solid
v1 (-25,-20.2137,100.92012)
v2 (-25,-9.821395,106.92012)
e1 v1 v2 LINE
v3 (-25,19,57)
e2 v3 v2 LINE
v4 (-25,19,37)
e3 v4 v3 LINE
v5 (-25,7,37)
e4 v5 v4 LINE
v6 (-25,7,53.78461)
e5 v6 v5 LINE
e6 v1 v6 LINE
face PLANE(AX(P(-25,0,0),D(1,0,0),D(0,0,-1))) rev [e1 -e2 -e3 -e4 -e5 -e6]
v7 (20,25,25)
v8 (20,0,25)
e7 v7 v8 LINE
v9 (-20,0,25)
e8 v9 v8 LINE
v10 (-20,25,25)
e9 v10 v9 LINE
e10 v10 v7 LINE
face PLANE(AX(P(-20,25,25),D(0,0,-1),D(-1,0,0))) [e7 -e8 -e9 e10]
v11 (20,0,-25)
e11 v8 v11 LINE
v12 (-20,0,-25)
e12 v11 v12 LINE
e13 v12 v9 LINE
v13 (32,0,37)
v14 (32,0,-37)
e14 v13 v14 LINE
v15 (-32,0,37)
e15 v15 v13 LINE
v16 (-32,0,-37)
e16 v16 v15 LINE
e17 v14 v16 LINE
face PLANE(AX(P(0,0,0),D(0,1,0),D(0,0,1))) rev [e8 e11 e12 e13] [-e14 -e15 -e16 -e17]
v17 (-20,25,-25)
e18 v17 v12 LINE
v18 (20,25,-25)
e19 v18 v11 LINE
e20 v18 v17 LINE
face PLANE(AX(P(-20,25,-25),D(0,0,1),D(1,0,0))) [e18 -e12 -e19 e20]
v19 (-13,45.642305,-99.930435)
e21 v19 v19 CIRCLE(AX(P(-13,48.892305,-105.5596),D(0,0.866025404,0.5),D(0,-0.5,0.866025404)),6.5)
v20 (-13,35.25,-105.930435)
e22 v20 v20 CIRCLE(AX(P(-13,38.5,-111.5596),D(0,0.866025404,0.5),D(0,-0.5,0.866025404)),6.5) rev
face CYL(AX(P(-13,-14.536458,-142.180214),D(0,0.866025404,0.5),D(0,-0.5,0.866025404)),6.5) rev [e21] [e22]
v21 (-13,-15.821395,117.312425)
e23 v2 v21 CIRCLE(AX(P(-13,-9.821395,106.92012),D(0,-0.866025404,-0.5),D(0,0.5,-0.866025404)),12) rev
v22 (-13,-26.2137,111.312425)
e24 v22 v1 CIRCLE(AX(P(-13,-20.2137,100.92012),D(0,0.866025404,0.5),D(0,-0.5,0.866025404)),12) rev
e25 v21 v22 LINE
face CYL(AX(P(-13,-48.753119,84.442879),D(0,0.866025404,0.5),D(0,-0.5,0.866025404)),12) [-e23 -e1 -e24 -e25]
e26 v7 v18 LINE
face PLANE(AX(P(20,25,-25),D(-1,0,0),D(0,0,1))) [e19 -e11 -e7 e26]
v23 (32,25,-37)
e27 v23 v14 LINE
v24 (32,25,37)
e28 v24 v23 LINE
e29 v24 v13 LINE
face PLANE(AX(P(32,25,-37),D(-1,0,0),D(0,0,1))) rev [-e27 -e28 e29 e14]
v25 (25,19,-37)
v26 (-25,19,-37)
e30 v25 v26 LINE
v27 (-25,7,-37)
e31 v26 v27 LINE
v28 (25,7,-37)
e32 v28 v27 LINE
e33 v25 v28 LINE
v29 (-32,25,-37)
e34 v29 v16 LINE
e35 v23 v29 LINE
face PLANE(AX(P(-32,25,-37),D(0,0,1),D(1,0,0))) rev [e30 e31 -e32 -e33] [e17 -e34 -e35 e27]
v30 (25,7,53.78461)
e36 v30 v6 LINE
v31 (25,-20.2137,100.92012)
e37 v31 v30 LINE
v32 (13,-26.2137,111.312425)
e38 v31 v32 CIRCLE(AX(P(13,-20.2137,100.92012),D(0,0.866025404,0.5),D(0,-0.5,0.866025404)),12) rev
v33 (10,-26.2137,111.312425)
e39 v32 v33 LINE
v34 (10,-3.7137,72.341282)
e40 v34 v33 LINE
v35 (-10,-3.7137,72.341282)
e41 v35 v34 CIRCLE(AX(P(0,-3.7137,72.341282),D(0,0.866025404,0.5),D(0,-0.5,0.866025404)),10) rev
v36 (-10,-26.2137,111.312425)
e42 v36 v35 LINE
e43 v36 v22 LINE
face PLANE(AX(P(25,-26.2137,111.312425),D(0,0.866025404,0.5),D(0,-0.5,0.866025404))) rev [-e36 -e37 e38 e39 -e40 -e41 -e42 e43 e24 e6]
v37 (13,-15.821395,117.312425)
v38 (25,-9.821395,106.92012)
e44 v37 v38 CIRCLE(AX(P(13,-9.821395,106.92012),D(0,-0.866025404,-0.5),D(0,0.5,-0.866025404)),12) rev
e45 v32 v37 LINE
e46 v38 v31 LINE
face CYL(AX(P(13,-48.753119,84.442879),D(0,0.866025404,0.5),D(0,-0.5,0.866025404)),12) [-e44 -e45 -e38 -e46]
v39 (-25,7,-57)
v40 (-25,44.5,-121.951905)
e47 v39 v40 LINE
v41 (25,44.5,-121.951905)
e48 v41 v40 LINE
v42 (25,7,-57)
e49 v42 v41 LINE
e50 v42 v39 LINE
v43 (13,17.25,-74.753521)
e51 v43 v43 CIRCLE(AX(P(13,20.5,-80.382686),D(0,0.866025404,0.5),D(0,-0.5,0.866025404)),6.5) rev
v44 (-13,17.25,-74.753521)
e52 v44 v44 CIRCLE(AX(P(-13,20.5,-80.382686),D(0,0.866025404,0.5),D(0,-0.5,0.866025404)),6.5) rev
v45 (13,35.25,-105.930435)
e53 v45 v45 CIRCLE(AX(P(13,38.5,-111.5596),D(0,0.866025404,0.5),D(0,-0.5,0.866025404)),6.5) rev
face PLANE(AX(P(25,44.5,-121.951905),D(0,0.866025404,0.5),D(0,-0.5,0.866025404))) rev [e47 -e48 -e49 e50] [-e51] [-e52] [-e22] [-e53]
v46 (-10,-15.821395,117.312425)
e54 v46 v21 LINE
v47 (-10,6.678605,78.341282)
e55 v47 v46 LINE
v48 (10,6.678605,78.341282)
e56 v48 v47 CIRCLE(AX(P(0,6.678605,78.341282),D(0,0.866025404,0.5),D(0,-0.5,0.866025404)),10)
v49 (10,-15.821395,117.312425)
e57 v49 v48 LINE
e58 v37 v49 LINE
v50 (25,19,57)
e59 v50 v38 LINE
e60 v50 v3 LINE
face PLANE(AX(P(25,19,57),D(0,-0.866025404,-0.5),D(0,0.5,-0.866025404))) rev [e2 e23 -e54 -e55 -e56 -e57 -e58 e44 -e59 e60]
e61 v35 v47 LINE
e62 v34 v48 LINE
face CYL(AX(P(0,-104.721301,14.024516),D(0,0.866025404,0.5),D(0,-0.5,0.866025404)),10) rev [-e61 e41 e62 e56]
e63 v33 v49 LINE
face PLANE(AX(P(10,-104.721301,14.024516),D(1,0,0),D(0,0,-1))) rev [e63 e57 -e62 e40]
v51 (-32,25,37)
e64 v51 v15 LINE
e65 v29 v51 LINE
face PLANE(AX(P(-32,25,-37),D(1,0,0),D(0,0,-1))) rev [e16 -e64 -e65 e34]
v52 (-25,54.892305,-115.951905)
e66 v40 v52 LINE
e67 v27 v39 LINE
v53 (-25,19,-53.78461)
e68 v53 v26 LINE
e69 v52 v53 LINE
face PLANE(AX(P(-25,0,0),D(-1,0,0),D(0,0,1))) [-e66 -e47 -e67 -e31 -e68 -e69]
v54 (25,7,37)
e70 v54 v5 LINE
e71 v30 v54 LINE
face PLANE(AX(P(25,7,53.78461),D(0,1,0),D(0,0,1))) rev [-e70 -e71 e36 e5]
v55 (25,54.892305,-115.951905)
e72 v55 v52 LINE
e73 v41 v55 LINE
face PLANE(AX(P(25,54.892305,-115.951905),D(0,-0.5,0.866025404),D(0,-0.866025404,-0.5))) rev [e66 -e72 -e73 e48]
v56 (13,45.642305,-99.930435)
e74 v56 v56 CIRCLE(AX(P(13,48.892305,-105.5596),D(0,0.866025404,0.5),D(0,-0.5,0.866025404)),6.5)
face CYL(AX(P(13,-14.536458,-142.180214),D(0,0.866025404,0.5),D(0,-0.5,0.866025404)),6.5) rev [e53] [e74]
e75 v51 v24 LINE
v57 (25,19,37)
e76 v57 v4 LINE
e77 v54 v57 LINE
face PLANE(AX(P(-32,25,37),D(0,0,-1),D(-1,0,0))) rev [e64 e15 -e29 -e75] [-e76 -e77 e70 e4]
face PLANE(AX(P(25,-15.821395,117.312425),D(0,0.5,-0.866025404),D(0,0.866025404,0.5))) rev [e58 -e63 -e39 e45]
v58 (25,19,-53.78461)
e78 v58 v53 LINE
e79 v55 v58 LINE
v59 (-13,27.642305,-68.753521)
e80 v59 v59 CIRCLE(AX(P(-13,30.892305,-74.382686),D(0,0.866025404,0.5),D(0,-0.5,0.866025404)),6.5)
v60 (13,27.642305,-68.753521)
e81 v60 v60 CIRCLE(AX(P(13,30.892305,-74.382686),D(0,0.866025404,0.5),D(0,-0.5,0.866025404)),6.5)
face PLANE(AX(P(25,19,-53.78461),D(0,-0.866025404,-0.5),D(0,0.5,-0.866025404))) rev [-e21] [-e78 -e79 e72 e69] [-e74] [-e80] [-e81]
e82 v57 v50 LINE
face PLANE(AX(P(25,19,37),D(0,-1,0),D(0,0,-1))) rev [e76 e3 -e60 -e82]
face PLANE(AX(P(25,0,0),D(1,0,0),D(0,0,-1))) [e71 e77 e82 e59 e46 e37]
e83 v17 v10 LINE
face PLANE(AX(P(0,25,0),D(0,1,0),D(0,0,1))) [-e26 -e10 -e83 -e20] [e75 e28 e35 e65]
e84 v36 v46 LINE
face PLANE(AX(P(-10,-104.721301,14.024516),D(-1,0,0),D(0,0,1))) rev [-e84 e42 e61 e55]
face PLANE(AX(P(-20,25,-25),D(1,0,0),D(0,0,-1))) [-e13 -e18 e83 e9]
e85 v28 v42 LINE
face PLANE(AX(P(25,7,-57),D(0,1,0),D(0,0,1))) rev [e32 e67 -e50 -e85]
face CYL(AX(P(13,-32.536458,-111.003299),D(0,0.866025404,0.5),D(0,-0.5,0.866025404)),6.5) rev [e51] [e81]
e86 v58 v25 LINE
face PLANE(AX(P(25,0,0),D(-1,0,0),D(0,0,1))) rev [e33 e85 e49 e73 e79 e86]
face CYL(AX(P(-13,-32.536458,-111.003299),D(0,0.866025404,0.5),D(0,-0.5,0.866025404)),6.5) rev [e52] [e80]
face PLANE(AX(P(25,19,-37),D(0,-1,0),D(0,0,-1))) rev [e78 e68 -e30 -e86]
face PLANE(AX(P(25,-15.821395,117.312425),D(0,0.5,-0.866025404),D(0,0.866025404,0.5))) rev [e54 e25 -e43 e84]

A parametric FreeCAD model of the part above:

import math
import FreeCAD as App
import Part
import Sketcher
from FreeCAD import Vector
Q = App.Units.Quantity


def edges_at(feature, points):
    """Names of the edges that pass closest to the given points."""
    edges = feature.Shape.Edges
    near = lambda p: min(range(len(edges)), key=lambda i: edges[i].distToShape(Part.Vertex(*p))[0])
    return sorted({f"Edge{near(p) + 1}" for p in points})


def add_polygon(sketch, points):
    """Adds a closed chain of lines whose ends are joined by coincident constraints."""
    first, n = sketch.GeometryCount, len(points)
    for a, b in zip(points, points[1:] + points[:1]):
        sketch.addGeometry(Part.LineSegment(App.Vector(*a, 0), App.Vector(*b, 0)), False)
    for i in range(n):
        sketch.addConstraint(Sketcher.Constraint("Coincident", first + i, 2, first + (i + 1) % n, 1))

doc = App.newDocument("Part")
params = doc.addObject("Spreadsheet::Sheet", "Params")
for row, (alias, value) in enumerate([
    ("sketch1_width", "64 mm"),
    ("sketch1_width2", "40 mm"),
    ("sketch1_height", "74 mm"),
    ("sketch1_height2", "50 mm"),
    ("pad1_length", "25 mm"),
    ("sketch2_width", "12 mm"),
    ("sketch2_height", "20 mm"),
    ("sketch2_length", "75 mm"),
    ("sketch2_length2", "12 mm"),
    ("pad2_length", "50 mm"),
    ("sketch3_diameter", "13 mm"),
    ("sketch4_diameter", "13 mm"),
    ("sketch5_diameter", "13 mm"),
    ("sketch6_diameter", "13 mm"),
    ("fillet_radius", "12 mm"),
    ("fillet2_radius", "12 mm"),
    ("sketch7_radius", "10 mm"),
    ("sketch7_height", "45 mm"),
], start=1):
    params.set(f"A{row}", alias)
    params.set(f"B{row}", "=" + value)
    params.setAlias(f"B{row}", alias)

body = doc.addObject("PartDesign::Body", "Body")

# Sketch on XZ plane
sketch1 = body.newObject("Sketcher::SketchObject", "Sketch")
sketch1.AttachmentSupport = (doc.getObject("XZ_Plane"), [""])
sketch1.MapMode = "FlatFace"
add_polygon(sketch1, [(-32, -37), (-32, 37), (32, 37), (32, -37)])  # lines 0-3
add_polygon(sketch1, [(20, 25), (-20, 25), (-20, -25), (20, -25)])  # lines 4-7
sketch1.addConstraint(Sketcher.Constraint("Vertical", 0))
sketch1.addConstraint(Sketcher.Constraint("Horizontal", 1))
sketch1.addConstraint(Sketcher.Constraint("Vertical", 2))
sketch1.addConstraint(Sketcher.Constraint("Horizontal", 3))
sketch1.addConstraint(Sketcher.Constraint("Horizontal", 4))
sketch1.addConstraint(Sketcher.Constraint("Vertical", 5))
sketch1.addConstraint(Sketcher.Constraint("Horizontal", 6))
sketch1.addConstraint(Sketcher.Constraint("Vertical", 7))
sketch1.addConstraint(Sketcher.Constraint("Symmetric", 0, 2, 2, 2, -1, 1))
sketch1.addConstraint(Sketcher.Constraint("Symmetric", 4, 2, 6, 2, -1, 1))
sketch1.addConstraint(Sketcher.Constraint("DistanceX", 1, 1, 1, 2, Q("64 mm")))
sketch1.addConstraint(Sketcher.Constraint("DistanceX", 4, 2, 4, 1, Q("40 mm")))
sketch1.addConstraint(Sketcher.Constraint("DistanceY", 0, 1, 0, 2, Q("74 mm")))
sketch1.addConstraint(Sketcher.Constraint("DistanceY", 5, 2, 5, 1, Q("50 mm")))
sketch1.setExpression("Constraints[18]", "Params.sketch1_width")
sketch1.setExpression("Constraints[19]", "Params.sketch1_width2")
sketch1.setExpression("Constraints[20]", "Params.sketch1_height")
sketch1.setExpression("Constraints[21]", "Params.sketch1_height2")
pad1 = body.newObject("PartDesign::Pad", "Pad")
pad1.Profile = sketch1
pad1.setExpression("Length", "Params.pad1_length")
pad1.Reversed = True

# Sketch on YZ plane
sketch2 = body.newObject("Sketcher::SketchObject", "Sketch001")
sketch2.AttachmentSupport = (doc.getObject("YZ_Plane"), [""])
sketch2.MapMode = "FlatFace"
add_polygon(sketch2, [(19, -54), (19, -37), (7, -37), (7, -57), (44, -122), (55, -116)])  # lines 0-5
add_polygon(sketch2, [(19, 37), (19, 57), (-16, 117), (-26, 111), (7, 54), (7, 37)])  # lines 6-11
sketch2.addConstraint(Sketcher.Constraint("Vertical", 0))
sketch2.addConstraint(Sketcher.Constraint("Horizontal", 1))
sketch2.addConstraint(Sketcher.Constraint("Vertical", 2))
sketch2.addConstraint(Sketcher.Constraint("Vertical", 6))
sketch2.addConstraint(Sketcher.Constraint("Vertical", 10))
sketch2.addConstraint(Sketcher.Constraint("Horizontal", 11))
sketch2.addConstraint(Sketcher.Constraint("Symmetric", 1, 2, 10, 2, -1))
sketch2.addConstraint(Sketcher.Constraint("Perpendicular", 3, 4))
sketch2.addConstraint(Sketcher.Constraint("Perpendicular", 4, 5))
sketch2.addConstraint(Sketcher.Constraint("Parallel", 5, 7))
sketch2.addConstraint(Sketcher.Constraint("Perpendicular", 7, 8))
sketch2.addConstraint(Sketcher.Constraint("Perpendicular", 8, 9))
sketch2.addConstraint(Sketcher.Constraint("Vertical", 5, 2, 6, 2))
sketch2.addConstraint(Sketcher.Constraint("Equal", 2, 6))
sketch2.addConstraint(Sketcher.Constraint("Equal", 0, 10))
sketch2.addConstraint(Sketcher.Constraint("DistanceX", 1, 2, 1, 1, Q("12 mm")))
sketch2.addConstraint(Sketcher.Constraint("DistanceY", 2, 2, 2, 1, Q("20 mm")))
sketch2.addConstraint(Sketcher.Constraint("Angle", 3, Q("-60 deg")))
sketch2.addConstraint(Sketcher.Constraint("Distance", 3, Q("75 mm")))
sketch2.addConstraint(Sketcher.Constraint("Distance", 4, Q("12 mm")))
sketch2.addConstraint(Sketcher.Constraint("DistanceX", -1, 1, 0, 2, Q("19 mm")))
sketch2.addConstraint(Sketcher.Constraint("DistanceY", 0, 2, -1, 1, Q("37 mm")))
sketch2.addConstraint(Sketcher.Constraint("Distance", 9, Q("66.4274 mm")))
sketch2.setExpression("Constraints[27]", "Params.sketch2_width")
sketch2.setExpression("Constraints[28]", "Params.sketch2_height")
sketch2.setExpression("Constraints[30]", "Params.sketch2_length")
sketch2.setExpression("Constraints[31]", "Params.sketch2_length2")
pad2 = body.newObject("PartDesign::Pad", "Pad001")
pad2.Profile = sketch2
pad2.setExpression("Length", "Params.pad2_length")
pad2.Midplane = True

# Sketch on an angled plane
sketch3 = body.newObject("Sketcher::SketchObject", "Sketch002")
sketch3.Placement = App.Placement(Vector(0, -9.039419, -5.218911), App.Rotation(Vector(1, 0, 0), Vector(0, 0.5, -0.866025404), Vector(0, 0.866025404, 0.5), "ZXY"))
sketch3.addGeometry(Part.Circle(Vector(-13, 116, 0), Vector(0, 0, 1), 6), False)
sketch3.addConstraint(Sketcher.Constraint("Diameter", 0, Q("13 mm")))
sketch3.addConstraint(Sketcher.Constraint("DistanceX", 0, 3, -1, 1, Q("13 mm")))
sketch3.addConstraint(Sketcher.Constraint("DistanceY", -1, 1, 0, 3, Q("115.863448 mm")))
sketch3.setExpression("Constraints[0]", "Params.sketch3_diameter")
pocket1 = body.newObject("PartDesign::Pocket", "Pocket")
pocket1.Profile = sketch3
pocket1.Type = "UpToFirst"

# Sketch on an angled plane
sketch4 = body.newObject("Sketcher::SketchObject", "Sketch003")
sketch4.Placement = App.Placement(Vector(0, -9.039419, -5.218911), App.Rotation(Vector(1, 0, 0), Vector(0, 0.5, -0.866025404), Vector(0, 0.866025404, 0.5), "ZXY"))
sketch4.addGeometry(Part.Circle(Vector(13, 116, 0), Vector(0, 0, 1), 6), False)
sketch4.addConstraint(Sketcher.Constraint("Diameter", 0, Q("13 mm")))
sketch4.addConstraint(Sketcher.Constraint("DistanceX", -1, 1, 0, 3, Q("13 mm")))
sketch4.addConstraint(Sketcher.Constraint("DistanceY", -1, 1, 0, 3, Q("115.863448 mm")))
sketch4.setExpression("Constraints[0]", "Params.sketch4_diameter")
pocket2 = body.newObject("PartDesign::Pocket", "Pocket001")
pocket2.Profile = sketch4
pocket2.Type = "UpToFirst"

# Sketch on an angled plane
sketch5 = body.newObject("Sketcher::SketchObject", "Sketch004")
sketch5.Placement = App.Placement(Vector(0, -9.039419, -5.218911), App.Rotation(Vector(1, 0, 0), Vector(0, 0.5, -0.866025404), Vector(0, 0.866025404, 0.5), "ZXY"))
sketch5.addGeometry(Part.Circle(Vector(-13, 80, 0), Vector(0, 0, 1), 6), False)
sketch5.addConstraint(Sketcher.Constraint("Diameter", 0, Q("13 mm")))
sketch5.addConstraint(Sketcher.Constraint("DistanceX", 0, 3, -1, 1, Q("13 mm")))
sketch5.addConstraint(Sketcher.Constraint("DistanceY", -1, 1, 0, 3, Q("79.863448 mm")))
sketch5.setExpression("Constraints[0]", "Params.sketch5_diameter")
pocket3 = body.newObject("PartDesign::Pocket", "Pocket002")
pocket3.Profile = sketch5
pocket3.Type = "UpToFirst"

# Sketch on an angled plane
sketch6 = body.newObject("Sketcher::SketchObject", "Sketch005")
sketch6.Placement = App.Placement(Vector(0, -9.039419, -5.218911), App.Rotation(Vector(1, 0, 0), Vector(0, 0.5, -0.866025404), Vector(0, 0.866025404, 0.5), "ZXY"))
sketch6.addGeometry(Part.Circle(Vector(13, 80, 0), Vector(0, 0, 1), 6), False)
sketch6.addConstraint(Sketcher.Constraint("Diameter", 0, Q("13 mm")))
sketch6.addConstraint(Sketcher.Constraint("DistanceX", -1, 1, 0, 3, Q("13 mm")))
sketch6.addConstraint(Sketcher.Constraint("DistanceY", -1, 1, 0, 3, Q("79.863448 mm")))
sketch6.setExpression("Constraints[0]", "Params.sketch6_diameter")
pocket4 = body.newObject("PartDesign::Pocket", "Pocket003")
pocket4.Profile = sketch6
pocket4.Type = "UpToFirst"
doc.recompute()

fillet = body.newObject("PartDesign::Fillet", "Fillet")
fillet.Base = (pocket4, edges_at(pocket4, [(25, -21.018, 114.312)]))
fillet.setExpression("Radius", "Params.fillet_radius")
doc.recompute()

fillet2 = body.newObject("PartDesign::Fillet", "Fillet001")
fillet2.Base = (fillet, edges_at(fillet, [(-25, -21.018, 114.312)]))
fillet2.setExpression("Radius", "Params.fillet2_radius")

# Sketch on an angled plane
sketch7 = body.newObject("Sketcher::SketchObject", "Sketch006")
sketch7.Placement = App.Placement(Vector(0, 38.931724, 22.477241), App.Rotation(Vector(1, 0, 0), Vector(0, 0.5, -0.866025404), Vector(0, 0.866025404, 0.5), "ZXY"))
sketch7.addGeometry(Part.LineSegment(Vector(-10, -65, 0), Vector(-10, -110, 0)), False)
sketch7.addGeometry(Part.LineSegment(Vector(-10, -110, 0), Vector(10, -110, 0)), False)
sketch7.addGeometry(Part.LineSegment(Vector(10, -110, 0), Vector(10, -65, 0)), False)
sketch7.addGeometry(Part.ArcOfCircle(Part.Circle(Vector(0, -65, 0), Vector(0, 0, 1), 10), math.radians(0), math.radians(180)), False)
sketch7.addConstraint(Sketcher.Constraint("Coincident", 0, 2, 1, 1))
sketch7.addConstraint(Sketcher.Constraint("Coincident", 1, 2, 2, 1))
sketch7.addConstraint(Sketcher.Constraint("Tangent", 2, 2, 3, 1))
sketch7.addConstraint(Sketcher.Constraint("Tangent", 3, 2, 0, 1))
sketch7.addConstraint(Sketcher.Constraint("Vertical", 0))
sketch7.addConstraint(Sketcher.Constraint("Horizontal", 1))
sketch7.addConstraint(Sketcher.Constraint("Vertical", 2))
sketch7.addConstraint(Sketcher.Constraint("PointOnObject", 3, 3, -2))
sketch7.addConstraint(Sketcher.Constraint("Radius", 3, Q("10 mm")))
sketch7.addConstraint(Sketcher.Constraint("DistanceY", 0, 2, 0, 1, Q("45 mm")))
sketch7.addConstraint(Sketcher.Constraint("DistanceY", 3, 3, -1, 1, Q("64.506238 mm")))
sketch7.setExpression("Constraints[8]", "Params.sketch7_radius")
sketch7.setExpression("Constraints[9]", "Params.sketch7_height")
pocket5 = body.newObject("PartDesign::Pocket", "Pocket004")
pocket5.Profile = sketch7
pocket5.Type = "UpToFirst"

doc.recompute()
